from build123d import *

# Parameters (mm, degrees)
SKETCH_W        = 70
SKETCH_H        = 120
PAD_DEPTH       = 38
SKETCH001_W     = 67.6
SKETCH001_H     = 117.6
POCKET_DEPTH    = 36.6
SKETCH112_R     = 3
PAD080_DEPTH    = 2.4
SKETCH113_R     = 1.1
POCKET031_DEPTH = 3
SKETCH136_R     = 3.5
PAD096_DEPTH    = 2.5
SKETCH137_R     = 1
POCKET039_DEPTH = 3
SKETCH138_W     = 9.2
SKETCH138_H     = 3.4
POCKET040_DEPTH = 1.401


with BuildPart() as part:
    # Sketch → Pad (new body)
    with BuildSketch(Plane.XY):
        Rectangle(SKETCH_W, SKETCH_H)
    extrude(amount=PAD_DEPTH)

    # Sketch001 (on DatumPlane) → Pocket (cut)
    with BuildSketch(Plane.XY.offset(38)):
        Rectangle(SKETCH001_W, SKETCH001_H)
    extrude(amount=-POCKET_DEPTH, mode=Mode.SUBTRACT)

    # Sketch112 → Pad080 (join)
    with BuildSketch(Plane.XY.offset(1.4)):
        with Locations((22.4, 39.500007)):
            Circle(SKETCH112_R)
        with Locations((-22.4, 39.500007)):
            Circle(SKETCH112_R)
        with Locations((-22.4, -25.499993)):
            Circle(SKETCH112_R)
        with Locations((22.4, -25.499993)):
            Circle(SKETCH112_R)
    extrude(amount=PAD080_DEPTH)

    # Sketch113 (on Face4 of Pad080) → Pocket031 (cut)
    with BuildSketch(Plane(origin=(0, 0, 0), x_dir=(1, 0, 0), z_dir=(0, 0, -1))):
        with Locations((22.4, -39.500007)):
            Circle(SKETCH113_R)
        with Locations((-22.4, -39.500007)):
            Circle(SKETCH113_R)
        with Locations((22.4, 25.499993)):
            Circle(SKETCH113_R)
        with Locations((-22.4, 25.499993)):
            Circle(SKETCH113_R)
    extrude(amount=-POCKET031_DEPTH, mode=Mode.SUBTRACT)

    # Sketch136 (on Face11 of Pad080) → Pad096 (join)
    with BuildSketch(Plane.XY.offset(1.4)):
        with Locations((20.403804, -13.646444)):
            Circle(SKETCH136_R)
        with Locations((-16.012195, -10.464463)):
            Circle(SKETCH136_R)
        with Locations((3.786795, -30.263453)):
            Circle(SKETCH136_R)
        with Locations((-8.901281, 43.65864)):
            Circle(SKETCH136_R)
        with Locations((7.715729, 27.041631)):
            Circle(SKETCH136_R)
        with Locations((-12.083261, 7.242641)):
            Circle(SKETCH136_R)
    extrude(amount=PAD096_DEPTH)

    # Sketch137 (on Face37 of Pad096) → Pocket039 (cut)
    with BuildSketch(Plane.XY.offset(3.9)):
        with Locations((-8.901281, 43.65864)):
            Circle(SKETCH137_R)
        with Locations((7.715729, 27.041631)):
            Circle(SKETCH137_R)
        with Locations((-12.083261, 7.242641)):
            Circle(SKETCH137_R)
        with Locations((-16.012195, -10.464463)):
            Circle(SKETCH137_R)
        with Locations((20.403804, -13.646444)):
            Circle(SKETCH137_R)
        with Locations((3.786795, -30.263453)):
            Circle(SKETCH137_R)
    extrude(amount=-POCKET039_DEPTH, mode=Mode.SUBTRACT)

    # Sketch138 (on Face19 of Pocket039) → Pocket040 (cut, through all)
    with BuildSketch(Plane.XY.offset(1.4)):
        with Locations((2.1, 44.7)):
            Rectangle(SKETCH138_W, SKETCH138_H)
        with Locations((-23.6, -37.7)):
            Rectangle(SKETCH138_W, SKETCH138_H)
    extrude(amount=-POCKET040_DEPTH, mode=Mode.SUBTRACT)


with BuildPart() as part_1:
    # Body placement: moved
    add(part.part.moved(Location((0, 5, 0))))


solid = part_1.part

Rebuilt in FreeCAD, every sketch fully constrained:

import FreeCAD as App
import Part
import Sketcher

V = App.Vector
Q = App.Units.Quantity


def add_polygon(sketch, points):
    """Adds a closed chain of lines whose ends are joined by coincident constraints."""
    first, n = sketch.GeometryCount, len(points)
    for a, b in zip(points, points[1:] + points[:1]):
        sketch.addGeometry(Part.LineSegment(App.Vector(*a, 0), App.Vector(*b, 0)), False)
    for i in range(n):
        sketch.addConstraint(Sketcher.Constraint("Coincident", first + i, 2, first + (i + 1) % n, 1))

doc = App.newDocument("Part")
body = doc.addObject("PartDesign::Body", "Body")

sketch1 = doc.addObject("Sketcher::SketchObject", "Sketch")
body.addObject(sketch1)
sketch1.AttachmentSupport = (doc.XY_Plane, [""])
sketch1.MapMode = "FlatFace"
add_polygon(sketch1, [(-35, 60), (-35, -60), (35, -60), (35, 60)])
sketch1.addConstraint([
    Sketcher.Constraint("Vertical", 0),
    Sketcher.Constraint("Horizontal", 1),
    Sketcher.Constraint("Vertical", 2),
    Sketcher.Constraint("Horizontal", 3),
    Sketcher.Constraint("Symmetric", 0, 2, 2, 2, -1, 1),
    Sketcher.Constraint("DistanceX", 1, 1, 1, 2, Q("70 mm")),
    Sketcher.Constraint("DistanceY", 0, 2, 0, 1, Q("120 mm")),
])
pad1 = doc.addObject("PartDesign::Pad", "Pad")
body.addObject(pad1)
pad1.Profile = sketch1
pad1.Length = 38

sketch2 = doc.addObject("Sketcher::SketchObject", "Sketch001")
body.addObject(sketch2)
sketch2.AttachmentSupport = (doc.XY_Plane, [""])
sketch2.MapMode = "FlatFace"
sketch2.AttachmentOffset = App.Placement(V(0, 0, 38), App.Rotation())
add_polygon(sketch2, [(-34, 59), (-34, -59), (34, -59), (34, 59)])
sketch2.addConstraint([
    Sketcher.Constraint("Vertical", 0),
    Sketcher.Constraint("Horizontal", 1),
    Sketcher.Constraint("Vertical", 2),
    Sketcher.Constraint("Horizontal", 3),
    Sketcher.Constraint("Symmetric", 0, 2, 2, 2, -1, 1),
    Sketcher.Constraint("DistanceX", 1, 1, 1, 2, Q("67.6 mm")),
    Sketcher.Constraint("DistanceY", 0, 2, 0, 1, Q("117.6 mm")),
])
pocket1 = doc.addObject("PartDesign::Pocket", "Pocket")
body.addObject(pocket1)
pocket1.Profile = sketch2
pocket1.Length = 36.6

sketch3 = doc.addObject("Sketcher::SketchObject", "Sketch002")
body.addObject(sketch3)
sketch3.AttachmentSupport = (doc.XY_Plane, [""])
sketch3.MapMode = "FlatFace"
sketch3.AttachmentOffset = App.Placement(V(0, 0, 1.4), App.Rotation())
sketch3.addGeometry([
    Part.Circle(V(22.4, 39.5, 0), V(0, 0, 1), 3),
    Part.Circle(V(-22.4, 39.5, 0), V(0, 0, 1), 3),
    Part.Circle(V(-22.4, -25.5, 0), V(0, 0, 1), 3),
    Part.Circle(V(22.4, -25.5, 0), V(0, 0, 1), 3),
], False)
sketch3.addConstraint([
    Sketcher.Constraint("Equal", 0, 1),
    Sketcher.Constraint("Equal", 1, 2),
    Sketcher.Constraint("Equal", 2, 3),
    Sketcher.Constraint("Symmetric", 0, 3, 1, 3, -2),
    Sketcher.Constraint("Symmetric", 2, 3, 3, 3, -2),
    Sketcher.Constraint("Vertical", 1, 3, 2, 3),
    Sketcher.Constraint("Diameter", 0, Q("6 mm")),
    Sketcher.Constraint("DistanceY", 2, 3, 1, 3, Q("65 mm")),
    Sketcher.Constraint("DistanceX", -1, 1, 0, 3, Q("22.4 mm")),
    Sketcher.Constraint("DistanceY", -1, 1, 0, 3, Q("39.500007 mm")),
])
pad2 = doc.addObject("PartDesign::Pad", "Pad001")
body.addObject(pad2)
pad2.Profile = sketch3
pad2.Length = 2.4

sketch4 = doc.addObject("Sketcher::SketchObject", "Sketch003")
body.addObject(sketch4)
sketch4.AttachmentSupport = (doc.XY_Plane, [""])
sketch4.MapMode = "FlatFace"
sketch4.addGeometry([
    Part.Circle(V(22.4, 39.5, 0), V(0, 0, 1), 1.1),
    Part.Circle(V(-22.4, 39.5, 0), V(0, 0, 1), 1.1),
    Part.Circle(V(22.4, -25.5, 0), V(0, 0, 1), 1.1),
    Part.Circle(V(-22.4, -25.5, 0), V(0, 0, 1), 1.1),
], False)
sketch4.addConstraint([
    Sketcher.Constraint("Equal", 0, 1),
    Sketcher.Constraint("Equal", 1, 2),
    Sketcher.Constraint("Equal", 2, 3),
    Sketcher.Constraint("Symmetric", 0, 3, 1, 3, -2),
    Sketcher.Constraint("Symmetric", 2, 3, 3, 3, -2),
    Sketcher.Constraint("Vertical", 0, 3, 2, 3),
    Sketcher.Constraint("Diameter", 0, Q("2.2 mm")),
    Sketcher.Constraint("DistanceY", 2, 3, 0, 3, Q("65 mm")),
    Sketcher.Constraint("DistanceX", -1, 1, 0, 3, Q("22.4 mm")),
    Sketcher.Constraint("DistanceY", -1, 1, 0, 3, Q("39.500007 mm")),
])
pocket2 = doc.addObject("PartDesign::Pocket", "Pocket001")
body.addObject(pocket2)
pocket2.Profile = sketch4
pocket2.Length = 3
pocket2.Reversed = True

sketch5 = doc.addObject("Sketcher::SketchObject", "Sketch004")
body.addObject(sketch5)
sketch5.AttachmentSupport = (doc.XY_Plane, [""])
sketch5.MapMode = "FlatFace"
sketch5.AttachmentOffset = App.Placement(V(0, 0, 1.4), App.Rotation())
sketch5.addGeometry([
    Part.Circle(V(20.4, -13.6, 0), V(0, 0, 1), 3.5),
    Part.Circle(V(-16, -10.5, 0), V(0, 0, 1), 3.5),
    Part.Circle(V(3.8, -30.3, 0), V(0, 0, 1), 3.5),
    Part.Circle(V(-8.9, 43.7, 0), V(0, 0, 1), 3.5),
    Part.Circle(V(7.7, 27, 0), V(0, 0, 1), 3.5),
    Part.Circle(V(-12.1, 7.2, 0), V(0, 0, 1), 3.5),
], False)
sketch5.addConstraint([
    Sketcher.Constraint("Equal", 0, 1),
    Sketcher.Constraint("Equal", 1, 2),
    Sketcher.Constraint("Equal", 2, 3),
    Sketcher.Constraint("Equal", 3, 4),
    Sketcher.Constraint("Equal", 4, 5),
    Sketcher.Constraint("Diameter", 0, Q("7 mm")),
    Sketcher.Constraint("DistanceX", 1, 3, 0, 3, Q("36.415999 mm")),
    Sketcher.Constraint("DistanceY", 5, 3, 3, 3, Q("36.415999 mm")),
    Sketcher.Constraint("DistanceX", 3, 3, -1, 1, Q("8.901281 mm")),
    Sketcher.Constraint("DistanceY", -1, 1, 3, 3, Q("43.65864 mm")),
    Sketcher.Constraint("DistanceX", -1, 1, 4, 3, Q("7.715729 mm")),
    Sketcher.Constraint("DistanceY", -1, 1, 4, 3, Q("27.041631 mm")),
    Sketcher.Constraint("DistanceX", 5, 3, -1, 1, Q("12.083261 mm")),
    Sketcher.Constraint("DistanceY", 0, 3, 1, 3, Q("3.181981 mm")),
    Sketcher.Constraint("DistanceX", 2, 3, 0, 3, Q("16.617009 mm")),
    Sketcher.Constraint("DistanceY", 2, 3, 0, 3, Q("16.617009 mm")),
    Sketcher.Constraint("DistanceX", -1, 1, 0, 3, Q("20.403804 mm")),
    Sketcher.Constraint("DistanceY", 0, 3, -1, 1, Q("13.646444 mm")),
])
pad3 = doc.addObject("PartDesign::Pad", "Pad002")
body.addObject(pad3)
pad3.Profile = sketch5
pad3.Length = 2.5

sketch6 = doc.addObject("Sketcher::SketchObject", "Sketch005")
body.addObject(sketch6)
sketch6.AttachmentSupport = (doc.XY_Plane, [""])
sketch6.MapMode = "FlatFace"
sketch6.AttachmentOffset = App.Placement(V(0, 0, 3.9), App.Rotation())
sketch6.addGeometry([
    Part.Circle(V(-8.9, 43.7, 0), V(0, 0, 1), 1),
    Part.Circle(V(7.7, 27, 0), V(0, 0, 1), 1),
    Part.Circle(V(-12.1, 7.2, 0), V(0, 0, 1), 1),
    Part.Circle(V(-16, -10.5, 0), V(0, 0, 1), 1),
    Part.Circle(V(20.4, -13.6, 0), V(0, 0, 1), 1),
    Part.Circle(V(3.8, -30.3, 0), V(0, 0, 1), 1),
], False)
sketch6.addConstraint([
    Sketcher.Constraint("Equal", 0, 1),
    Sketcher.Constraint("Equal", 1, 2),
    Sketcher.Constraint("Equal", 2, 3),
    Sketcher.Constraint("Equal", 3, 4),
    Sketcher.Constraint("Equal", 4, 5),
    Sketcher.Constraint("Diameter", 0, Q("2 mm")),
    Sketcher.Constraint("DistanceY", 2, 3, 0, 3, Q("36.415999 mm")),
    Sketcher.Constraint("DistanceX", 3, 3, 4, 3, Q("36.415999 mm")),
    Sketcher.Constraint("DistanceX", 0, 3, -1, 1, Q("8.901281 mm")),
    Sketcher.Constraint("DistanceY", -1, 1, 0, 3, Q("43.65864 mm")),
    Sketcher.Constraint("DistanceX", -1, 1, 1, 3, Q("7.715729 mm")),
    Sketcher.Constraint("DistanceY", -1, 1, 1, 3, Q("27.041631 mm")),
    Sketcher.Constraint("DistanceX", 2, 3, -1, 1, Q("12.083261 mm")),
    Sketcher.Constraint("DistanceY", 4, 3, 3, 3, Q("3.181981 mm")),
    Sketcher.Constraint("DistanceX", 5, 3, 4, 3, Q("16.617009 mm")),
    Sketcher.Constraint("DistanceY", 5, 3, 4, 3, Q("16.617009 mm")),
    Sketcher.Constraint("DistanceX", 3, 3, -1, 1, Q("16.012195 mm")),
    Sketcher.Constraint("DistanceY", 3, 3, -1, 1, Q("10.464463 mm")),
])
pocket3 = doc.addObject("PartDesign::Pocket", "Pocket002")
body.addObject(pocket3)
pocket3.Profile = sketch6
pocket3.Length = 3

sketch7 = doc.addObject("Sketcher::SketchObject", "Sketch006")
body.addObject(sketch7)
sketch7.AttachmentSupport = (doc.XY_Plane, [""])
sketch7.MapMode = "FlatFace"
sketch7.AttachmentOffset = App.Placement(V(0, 0, 1.4), App.Rotation())
add_polygon(sketch7, [(-2.5, 46.4), (-2.5, 43), (6.7, 43), (6.7, 46.4)])
add_polygon(sketch7, [(-28.2, -36), (-28.2, -39.4), (-19, -39.4), (-19, -36)])
sketch7.addConstraint([
    Sketcher.Constraint("Vertical", 0),
    Sketcher.Constraint("Horizontal", 1),
    Sketcher.Constraint("Vertical", 2),
    Sketcher.Constraint("Horizontal", 3),
    Sketcher.Constraint("Vertical", 4),
    Sketcher.Constraint("Horizontal", 5),
    Sketcher.Constraint("Vertical", 6),
    Sketcher.Constraint("Horizontal", 7),
    Sketcher.Constraint("Equal", 3, 5),
    Sketcher.Constraint("Equal", 2, 4),
    Sketcher.Constraint("DistanceX", 1, 1, 1, 2, Q("9.2 mm")),
    Sketcher.Constraint("DistanceY", 0, 2, 0, 1, Q("3.4 mm")),
    Sketcher.Constraint("DistanceY", -1, 1, 0, 2, Q("43 mm")),
    Sketcher.Constraint("DistanceX", 5, 2, -1, 1, Q("19 mm")),
    Sketcher.Constraint("DistanceY", 6, 2, -1, 1, Q("36 mm")),
    Sketcher.Constraint("DistanceX", 0, 2, -1, 1, Q("2.5 mm")),
])
pocket4 = doc.addObject("PartDesign::Pocket", "Pocket003")
body.addObject(pocket4)
pocket4.Profile = sketch7
pocket4.Type = "ThroughAll"
body2 = doc.addObject("PartDesign::Body", "Body001")
doc.recompute()

body.Placement = App.Placement(V(0, 5, 0), App.Rotation(V(0, 0, 1), 0))
boolean = doc.addObject("PartDesign::Boolean", "Boolean")
body2.addObject(boolean)
boolean.Type = "Fuse"
boolean.addObjects([body])

doc.recompute()
